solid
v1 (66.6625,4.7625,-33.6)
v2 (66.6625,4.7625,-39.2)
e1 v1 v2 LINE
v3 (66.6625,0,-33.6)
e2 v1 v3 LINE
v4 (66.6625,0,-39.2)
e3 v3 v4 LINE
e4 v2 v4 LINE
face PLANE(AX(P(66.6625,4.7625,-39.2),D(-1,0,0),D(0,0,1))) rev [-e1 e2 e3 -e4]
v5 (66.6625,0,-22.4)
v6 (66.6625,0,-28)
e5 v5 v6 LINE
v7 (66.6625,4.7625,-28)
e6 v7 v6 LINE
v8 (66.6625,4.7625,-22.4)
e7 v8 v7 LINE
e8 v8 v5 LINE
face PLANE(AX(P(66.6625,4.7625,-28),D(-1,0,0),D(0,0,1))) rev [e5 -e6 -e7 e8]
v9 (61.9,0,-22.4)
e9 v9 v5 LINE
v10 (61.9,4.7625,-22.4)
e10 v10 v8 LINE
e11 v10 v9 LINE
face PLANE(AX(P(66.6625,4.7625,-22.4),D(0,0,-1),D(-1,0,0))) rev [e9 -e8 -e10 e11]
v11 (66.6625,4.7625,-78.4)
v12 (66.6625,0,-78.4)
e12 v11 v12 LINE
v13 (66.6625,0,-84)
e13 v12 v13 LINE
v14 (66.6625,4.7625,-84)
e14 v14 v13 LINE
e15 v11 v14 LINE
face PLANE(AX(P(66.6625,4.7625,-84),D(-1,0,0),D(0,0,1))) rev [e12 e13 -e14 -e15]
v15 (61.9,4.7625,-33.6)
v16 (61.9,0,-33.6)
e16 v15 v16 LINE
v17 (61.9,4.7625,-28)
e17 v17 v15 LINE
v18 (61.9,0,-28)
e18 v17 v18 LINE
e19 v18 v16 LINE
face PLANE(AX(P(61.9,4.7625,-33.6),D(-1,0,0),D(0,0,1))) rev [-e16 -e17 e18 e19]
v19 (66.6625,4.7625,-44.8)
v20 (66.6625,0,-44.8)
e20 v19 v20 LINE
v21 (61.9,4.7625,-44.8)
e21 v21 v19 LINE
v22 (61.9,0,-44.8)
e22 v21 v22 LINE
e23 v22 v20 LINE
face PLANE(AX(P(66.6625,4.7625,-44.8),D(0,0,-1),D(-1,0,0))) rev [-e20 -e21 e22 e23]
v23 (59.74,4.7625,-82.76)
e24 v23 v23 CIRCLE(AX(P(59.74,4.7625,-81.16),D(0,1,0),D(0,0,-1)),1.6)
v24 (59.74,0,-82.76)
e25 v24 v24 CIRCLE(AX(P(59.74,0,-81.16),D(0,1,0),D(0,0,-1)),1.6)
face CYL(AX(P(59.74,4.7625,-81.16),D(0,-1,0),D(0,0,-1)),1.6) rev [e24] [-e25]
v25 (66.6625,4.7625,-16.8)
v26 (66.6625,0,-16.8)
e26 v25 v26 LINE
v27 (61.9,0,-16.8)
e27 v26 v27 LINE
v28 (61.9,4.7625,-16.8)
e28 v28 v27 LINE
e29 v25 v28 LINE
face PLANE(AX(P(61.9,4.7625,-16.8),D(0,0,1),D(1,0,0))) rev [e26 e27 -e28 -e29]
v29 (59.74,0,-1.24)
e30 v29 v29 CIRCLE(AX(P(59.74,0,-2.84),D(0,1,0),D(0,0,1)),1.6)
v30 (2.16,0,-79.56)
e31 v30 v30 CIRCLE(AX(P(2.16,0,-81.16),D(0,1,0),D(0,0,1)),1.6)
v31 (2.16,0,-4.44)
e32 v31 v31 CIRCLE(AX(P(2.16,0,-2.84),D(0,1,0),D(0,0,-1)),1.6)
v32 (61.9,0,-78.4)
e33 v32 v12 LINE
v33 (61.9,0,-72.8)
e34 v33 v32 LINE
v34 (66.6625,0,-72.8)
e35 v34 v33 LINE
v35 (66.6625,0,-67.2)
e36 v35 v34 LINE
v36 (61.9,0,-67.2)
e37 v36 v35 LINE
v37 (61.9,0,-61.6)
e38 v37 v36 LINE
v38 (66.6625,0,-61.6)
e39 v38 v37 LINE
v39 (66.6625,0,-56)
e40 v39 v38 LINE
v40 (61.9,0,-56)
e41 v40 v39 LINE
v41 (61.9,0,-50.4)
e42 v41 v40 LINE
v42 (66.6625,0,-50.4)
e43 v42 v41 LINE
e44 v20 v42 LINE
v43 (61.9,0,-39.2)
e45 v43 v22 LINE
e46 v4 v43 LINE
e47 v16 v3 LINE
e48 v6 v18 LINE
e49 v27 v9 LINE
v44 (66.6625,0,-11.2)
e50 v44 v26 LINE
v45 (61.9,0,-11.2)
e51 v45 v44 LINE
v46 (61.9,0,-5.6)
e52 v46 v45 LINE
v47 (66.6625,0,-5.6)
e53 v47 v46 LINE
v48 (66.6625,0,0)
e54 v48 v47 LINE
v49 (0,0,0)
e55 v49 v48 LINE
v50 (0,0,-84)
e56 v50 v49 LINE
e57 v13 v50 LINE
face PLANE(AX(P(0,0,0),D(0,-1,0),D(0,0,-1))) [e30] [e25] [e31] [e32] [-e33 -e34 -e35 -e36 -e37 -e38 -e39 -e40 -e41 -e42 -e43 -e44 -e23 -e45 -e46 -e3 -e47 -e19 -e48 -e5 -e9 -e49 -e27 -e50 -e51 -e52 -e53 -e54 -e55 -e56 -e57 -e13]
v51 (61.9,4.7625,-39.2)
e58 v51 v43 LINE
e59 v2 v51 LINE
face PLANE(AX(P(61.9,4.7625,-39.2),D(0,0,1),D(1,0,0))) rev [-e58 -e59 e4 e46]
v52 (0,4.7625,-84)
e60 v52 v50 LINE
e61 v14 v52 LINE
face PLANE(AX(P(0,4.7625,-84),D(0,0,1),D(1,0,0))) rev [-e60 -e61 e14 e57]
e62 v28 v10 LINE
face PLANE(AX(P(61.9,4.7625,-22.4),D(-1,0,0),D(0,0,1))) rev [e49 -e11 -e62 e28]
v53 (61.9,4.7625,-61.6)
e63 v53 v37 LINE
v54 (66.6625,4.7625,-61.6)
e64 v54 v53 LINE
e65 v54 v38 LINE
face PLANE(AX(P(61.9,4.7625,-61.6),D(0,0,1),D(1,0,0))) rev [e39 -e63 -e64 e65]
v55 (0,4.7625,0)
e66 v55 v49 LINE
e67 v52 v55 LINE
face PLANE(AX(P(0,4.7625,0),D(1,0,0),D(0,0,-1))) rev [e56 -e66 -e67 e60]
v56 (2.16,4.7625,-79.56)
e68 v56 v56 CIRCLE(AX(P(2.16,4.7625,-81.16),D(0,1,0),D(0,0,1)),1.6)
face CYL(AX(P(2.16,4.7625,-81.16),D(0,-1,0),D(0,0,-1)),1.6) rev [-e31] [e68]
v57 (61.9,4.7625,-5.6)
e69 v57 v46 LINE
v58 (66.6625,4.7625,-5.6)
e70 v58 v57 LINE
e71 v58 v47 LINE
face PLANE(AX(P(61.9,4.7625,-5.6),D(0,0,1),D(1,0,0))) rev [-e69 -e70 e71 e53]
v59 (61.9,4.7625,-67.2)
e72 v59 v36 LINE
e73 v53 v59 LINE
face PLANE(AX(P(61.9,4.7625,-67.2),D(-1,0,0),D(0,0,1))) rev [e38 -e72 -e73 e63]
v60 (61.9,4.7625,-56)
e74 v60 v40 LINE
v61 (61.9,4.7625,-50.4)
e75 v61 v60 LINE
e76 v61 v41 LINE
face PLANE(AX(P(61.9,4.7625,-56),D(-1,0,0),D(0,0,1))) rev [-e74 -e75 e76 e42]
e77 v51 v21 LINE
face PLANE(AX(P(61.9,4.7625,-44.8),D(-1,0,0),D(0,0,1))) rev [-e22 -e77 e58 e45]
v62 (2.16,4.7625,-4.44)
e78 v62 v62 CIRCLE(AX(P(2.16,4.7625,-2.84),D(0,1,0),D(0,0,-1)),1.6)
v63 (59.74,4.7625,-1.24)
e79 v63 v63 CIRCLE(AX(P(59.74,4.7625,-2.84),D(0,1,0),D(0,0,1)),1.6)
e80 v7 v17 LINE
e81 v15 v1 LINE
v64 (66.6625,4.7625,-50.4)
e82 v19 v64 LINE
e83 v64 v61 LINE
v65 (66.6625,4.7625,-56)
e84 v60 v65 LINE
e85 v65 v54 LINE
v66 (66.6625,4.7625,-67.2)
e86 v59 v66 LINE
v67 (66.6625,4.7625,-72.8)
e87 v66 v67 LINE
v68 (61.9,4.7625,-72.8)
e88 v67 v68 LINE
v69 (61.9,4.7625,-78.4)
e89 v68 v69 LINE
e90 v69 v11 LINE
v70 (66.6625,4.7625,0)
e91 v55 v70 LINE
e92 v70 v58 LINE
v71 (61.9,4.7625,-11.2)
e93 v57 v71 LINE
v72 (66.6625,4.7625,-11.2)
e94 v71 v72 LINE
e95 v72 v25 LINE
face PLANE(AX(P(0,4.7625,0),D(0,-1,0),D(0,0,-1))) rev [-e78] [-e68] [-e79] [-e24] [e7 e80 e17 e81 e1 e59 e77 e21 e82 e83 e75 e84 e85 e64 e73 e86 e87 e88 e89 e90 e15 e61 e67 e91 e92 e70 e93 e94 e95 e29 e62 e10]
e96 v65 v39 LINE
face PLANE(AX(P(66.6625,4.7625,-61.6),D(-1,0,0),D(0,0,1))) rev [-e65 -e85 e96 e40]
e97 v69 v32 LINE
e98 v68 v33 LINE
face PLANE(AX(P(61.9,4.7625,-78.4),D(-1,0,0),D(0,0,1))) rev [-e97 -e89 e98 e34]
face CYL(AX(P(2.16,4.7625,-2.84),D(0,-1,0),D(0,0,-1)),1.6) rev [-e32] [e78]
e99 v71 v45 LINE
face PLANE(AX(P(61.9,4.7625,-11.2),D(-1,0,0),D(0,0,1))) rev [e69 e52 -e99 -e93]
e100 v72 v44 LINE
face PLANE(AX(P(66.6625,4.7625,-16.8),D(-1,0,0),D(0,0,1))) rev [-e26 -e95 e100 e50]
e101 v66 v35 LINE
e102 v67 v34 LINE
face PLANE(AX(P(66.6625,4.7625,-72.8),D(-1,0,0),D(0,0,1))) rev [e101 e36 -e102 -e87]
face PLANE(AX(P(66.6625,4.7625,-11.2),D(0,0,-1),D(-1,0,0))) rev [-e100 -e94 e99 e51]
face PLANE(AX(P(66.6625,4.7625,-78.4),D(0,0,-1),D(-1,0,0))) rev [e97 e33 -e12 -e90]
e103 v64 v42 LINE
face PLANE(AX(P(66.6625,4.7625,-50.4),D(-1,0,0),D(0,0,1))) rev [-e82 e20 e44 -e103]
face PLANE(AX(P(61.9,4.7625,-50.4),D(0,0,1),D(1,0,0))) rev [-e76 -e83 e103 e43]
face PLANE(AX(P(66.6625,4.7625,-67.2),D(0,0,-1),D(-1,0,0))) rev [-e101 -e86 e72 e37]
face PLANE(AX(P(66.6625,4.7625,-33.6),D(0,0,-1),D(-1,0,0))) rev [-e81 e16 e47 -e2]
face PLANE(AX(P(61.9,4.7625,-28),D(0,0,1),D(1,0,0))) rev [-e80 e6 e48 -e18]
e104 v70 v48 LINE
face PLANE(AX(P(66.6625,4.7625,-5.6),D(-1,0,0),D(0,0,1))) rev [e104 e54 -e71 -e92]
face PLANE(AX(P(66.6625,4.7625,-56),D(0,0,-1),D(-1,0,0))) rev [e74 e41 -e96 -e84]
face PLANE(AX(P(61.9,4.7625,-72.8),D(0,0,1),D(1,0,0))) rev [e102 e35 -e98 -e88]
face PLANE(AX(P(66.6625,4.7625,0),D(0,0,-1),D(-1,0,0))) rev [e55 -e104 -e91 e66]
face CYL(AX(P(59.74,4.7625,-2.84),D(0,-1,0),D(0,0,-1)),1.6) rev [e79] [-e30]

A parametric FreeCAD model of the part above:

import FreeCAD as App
import Part
import Sketcher

V = App.Vector
Q = App.Units.Quantity

doc = App.newDocument("Part")
params = doc.addObject("Spreadsheet::Sheet", "Params")
for row, (alias, value) in enumerate([
    ("sketch1_diameter", "3.2 mm"),
    ("sketch1_height", "84 mm"),
    ("pad1_length", "4.7625 mm"),
], start=1):
    params.set(f"A{row}", alias)
    params.set(f"B{row}", "=" + value)
    params.setAlias(f"B{row}", alias)

body = doc.addObject("PartDesign::Body", "Body")

sketch1 = body.newObject("Sketcher::SketchObject", "Sketch")
sketch1.AttachmentSupport = (doc.getObject("XZ_Plane"), [""])
sketch1.MapMode = "FlatFace"
sketch1.addGeometry(Part.LineSegment(V(0, 0, 0), V(66.7, 0, 0)), False)
sketch1.addGeometry(Part.LineSegment(V(66.7, 0, 0), V(66.7, -5.6, 0)), False)
sketch1.addGeometry(Part.LineSegment(V(66.7, -5.6, 0), V(61.9, -5.6, 0)), False)
sketch1.addGeometry(Part.LineSegment(V(61.9, -5.6, 0), V(61.9, -11.2, 0)), False)
sketch1.addGeometry(Part.LineSegment(V(61.9, -11.2, 0), V(66.7, -11.2, 0)), False)
sketch1.addGeometry(Part.LineSegment(V(66.7, -11.2, 0), V(66.7, -16.8, 0)), False)
sketch1.addGeometry(Part.LineSegment(V(66.7, -16.8, 0), V(61.9, -16.8, 0)), False)
sketch1.addGeometry(Part.LineSegment(V(61.9, -16.8, 0), V(61.9, -22.4, 0)), False)
sketch1.addGeometry(Part.LineSegment(V(61.9, -22.4, 0), V(66.7, -22.4, 0)), False)
sketch1.addGeometry(Part.LineSegment(V(66.7, -22.4, 0), V(66.7, -28, 0)), False)
sketch1.addGeometry(Part.LineSegment(V(66.7, -28, 0), V(61.9, -28, 0)), False)
sketch1.addGeometry(Part.LineSegment(V(61.9, -28, 0), V(61.9, -33.6, 0)), False)
sketch1.addGeometry(Part.LineSegment(V(61.9, -33.6, 0), V(66.7, -33.6, 0)), False)
sketch1.addGeometry(Part.LineSegment(V(66.7, -33.6, 0), V(66.7, -39.2, 0)), False)
sketch1.addGeometry(Part.LineSegment(V(66.7, -39.2, 0), V(61.9, -39.2, 0)), False)
sketch1.addGeometry(Part.LineSegment(V(61.9, -39.2, 0), V(61.9, -44.8, 0)), False)
sketch1.addGeometry(Part.LineSegment(V(61.9, -44.8, 0), V(66.7, -44.8, 0)), False)
sketch1.addGeometry(Part.LineSegment(V(66.7, -44.8, 0), V(66.7, -50.4, 0)), False)
sketch1.addGeometry(Part.LineSegment(V(66.7, -50.4, 0), V(61.9, -50.4, 0)), False)
sketch1.addGeometry(Part.LineSegment(V(61.9, -50.4, 0), V(61.9, -56, 0)), False)
sketch1.addGeometry(Part.LineSegment(V(61.9, -56, 0), V(66.7, -56, 0)), False)
sketch1.addGeometry(Part.LineSegment(V(66.7, -56, 0), V(66.7, -61.6, 0)), False)
sketch1.addGeometry(Part.LineSegment(V(66.7, -61.6, 0), V(61.9, -61.6, 0)), False)
sketch1.addGeometry(Part.LineSegment(V(61.9, -61.6, 0), V(61.9, -67.2, 0)), False)
sketch1.addGeometry(Part.LineSegment(V(61.9, -67.2, 0), V(66.7, -67.2, 0)), False)
sketch1.addGeometry(Part.LineSegment(V(66.7, -67.2, 0), V(66.7, -72.8, 0)), False)
sketch1.addGeometry(Part.LineSegment(V(66.7, -72.8, 0), V(61.9, -72.8, 0)), False)
sketch1.addGeometry(Part.LineSegment(V(61.9, -72.8, 0), V(61.9, -78.4, 0)), False)
sketch1.addGeometry(Part.LineSegment(V(61.9, -78.4, 0), V(66.7, -78.4, 0)), False)
sketch1.addGeometry(Part.LineSegment(V(66.7, -78.4, 0), V(66.7, -84, 0)), False)
sketch1.addGeometry(Part.LineSegment(V(66.7, -84, 0), V(0, -84, 0)), False)
sketch1.addGeometry(Part.LineSegment(V(0, -84, 0), V(0, 0, 0)), False)
sketch1.addGeometry(Part.Circle(V(2.2, -2.8, 0), V(0, 0, 1), 1.6), False)
sketch1.addGeometry(Part.Circle(V(59.7, -2.8, 0), V(0, 0, 1), 1.6), False)
sketch1.addGeometry(Part.Circle(V(2.2, -81.2, 0), V(0, 0, 1), 1.6), False)
sketch1.addGeometry(Part.Circle(V(59.7, -81.2, 0), V(0, 0, 1), 1.6), False)
sketch1.addConstraint(Sketcher.Constraint("Coincident", 0, 2, 1, 1))
sketch1.addConstraint(Sketcher.Constraint("Coincident", 1, 2, 2, 1))
sketch1.addConstraint(Sketcher.Constraint("Coincident", 2, 2, 3, 1))
sketch1.addConstraint(Sketcher.Constraint("Coincident", 3, 2, 4, 1))
sketch1.addConstraint(Sketcher.Constraint("Coincident", 4, 2, 5, 1))
sketch1.addConstraint(Sketcher.Constraint("Coincident", 5, 2, 6, 1))
sketch1.addConstraint(Sketcher.Constraint("Coincident", 6, 2, 7, 1))
sketch1.addConstraint(Sketcher.Constraint("Coincident", 7, 2, 8, 1))
sketch1.addConstraint(Sketcher.Constraint("Coincident", 8, 2, 9, 1))
sketch1.addConstraint(Sketcher.Constraint("Coincident", 9, 2, 10, 1))
sketch1.addConstraint(Sketcher.Constraint("Coincident", 10, 2, 11, 1))
sketch1.addConstraint(Sketcher.Constraint("Coincident", 11, 2, 12, 1))
sketch1.addConstraint(Sketcher.Constraint("Coincident", 12, 2, 13, 1))
sketch1.addConstraint(Sketcher.Constraint("Coincident", 13, 2, 14, 1))
sketch1.addConstraint(Sketcher.Constraint("Coincident", 14, 2, 15, 1))
sketch1.addConstraint(Sketcher.Constraint("Coincident", 15, 2, 16, 1))
sketch1.addConstraint(Sketcher.Constraint("Coincident", 16, 2, 17, 1))
sketch1.addConstraint(Sketcher.Constraint("Coincident", 17, 2, 18, 1))
sketch1.addConstraint(Sketcher.Constraint("Coincident", 18, 2, 19, 1))
sketch1.addConstraint(Sketcher.Constraint("Coincident", 19, 2, 20, 1))
sketch1.addConstraint(Sketcher.Constraint("Coincident", 20, 2, 21, 1))
sketch1.addConstraint(Sketcher.Constraint("Coincident", 21, 2, 22, 1))
sketch1.addConstraint(Sketcher.Constraint("Coincident", 22, 2, 23, 1))
sketch1.addConstraint(Sketcher.Constraint("Coincident", 23, 2, 24, 1))
sketch1.addConstraint(Sketcher.Constraint("Coincident", 24, 2, 25, 1))
sketch1.addConstraint(Sketcher.Constraint("Coincident", 25, 2, 26, 1))
sketch1.addConstraint(Sketcher.Constraint("Coincident", 26, 2, 27, 1))
sketch1.addConstraint(Sketcher.Constraint("Coincident", 27, 2, 28, 1))
sketch1.addConstraint(Sketcher.Constraint("Coincident", 28, 2, 29, 1))
sketch1.addConstraint(Sketcher.Constraint("Coincident", 29, 2, 30, 1))
sketch1.addConstraint(Sketcher.Constraint("Coincident", 30, 2, 31, 1))
sketch1.addConstraint(Sketcher.Constraint("Coincident", 31, 2, 0, 1))
sketch1.addConstraint(Sketcher.Constraint("Horizontal", 0))
sketch1.addConstraint(Sketcher.Constraint("Vertical", 1))
sketch1.addConstraint(Sketcher.Constraint("Horizontal", 2))
sketch1.addConstraint(Sketcher.Constraint("Vertical", 3))
sketch1.addConstraint(Sketcher.Constraint("Horizontal", 4))
sketch1.addConstraint(Sketcher.Constraint("Vertical", 5))
sketch1.addConstraint(Sketcher.Constraint("Horizontal", 6))
sketch1.addConstraint(Sketcher.Constraint("Vertical", 7))
sketch1.addConstraint(Sketcher.Constraint("Horizontal", 8))
sketch1.addConstraint(Sketcher.Constraint("Vertical", 9))
sketch1.addConstraint(Sketcher.Constraint("Horizontal", 10))
sketch1.addConstraint(Sketcher.Constraint("Vertical", 11))
sketch1.addConstraint(Sketcher.Constraint("Horizontal", 12))
sketch1.addConstraint(Sketcher.Constraint("Vertical", 13))
sketch1.addConstraint(Sketcher.Constraint("Horizontal", 14))
sketch1.addConstraint(Sketcher.Constraint("Vertical", 15))
sketch1.addConstraint(Sketcher.Constraint("Horizontal", 16))
sketch1.addConstraint(Sketcher.Constraint("Vertical", 17))
sketch1.addConstraint(Sketcher.Constraint("Horizontal", 18))
sketch1.addConstraint(Sketcher.Constraint("Vertical", 19))
sketch1.addConstraint(Sketcher.Constraint("Horizontal", 20))
sketch1.addConstraint(Sketcher.Constraint("Vertical", 21))
sketch1.addConstraint(Sketcher.Constraint("Horizontal", 22))
sketch1.addConstraint(Sketcher.Constraint("Vertical", 23))
sketch1.addConstraint(Sketcher.Constraint("Horizontal", 24))
sketch1.addConstraint(Sketcher.Constraint("Vertical", 25))
sketch1.addConstraint(Sketcher.Constraint("Horizontal", 26))
sketch1.addConstraint(Sketcher.Constraint("Vertical", 27))
sketch1.addConstraint(Sketcher.Constraint("Horizontal", 28))
sketch1.addConstraint(Sketcher.Constraint("Vertical", 29))
sketch1.addConstraint(Sketcher.Constraint("Horizontal", 30))
sketch1.addConstraint(Sketcher.Constraint("Vertical", 31))
sketch1.addConstraint(Sketcher.Constraint("Coincident", 31, 2, -1, 1))
sketch1.addConstraint(Sketcher.Constraint("Equal", 32, 33))
sketch1.addConstraint(Sketcher.Constraint("Equal", 33, 34))
sketch1.addConstraint(Sketcher.Constraint("Equal", 34, 35))
sketch1.addConstraint(Sketcher.Constraint("Horizontal", 32, 3, 33, 3))
sketch1.addConstraint(Sketcher.Constraint("Horizontal", 34, 3, 35, 3))
sketch1.addConstraint(Sketcher.Constraint("Vertical", 32, 3, 34, 3))
sketch1.addConstraint(Sketcher.Constraint("Vertical", 33, 3, 35, 3))
sketch1.addConstraint(Sketcher.Constraint("Vertical", 1, 2, 4, 2))
sketch1.addConstraint(Sketcher.Constraint("Vertical", 3, 2, 6, 2))
sketch1.addConstraint(Sketcher.Constraint("Vertical", 5, 2, 8, 2))
sketch1.addConstraint(Sketcher.Constraint("Vertical", 7, 2, 10, 2))
sketch1.addConstraint(Sketcher.Constraint("Vertical", 9, 2, 12, 2))
sketch1.addConstraint(Sketcher.Constraint("Vertical", 11, 2, 14, 2))
sketch1.addConstraint(Sketcher.Constraint("Vertical", 13, 2, 16, 2))
sketch1.addConstraint(Sketcher.Constraint("Vertical", 15, 2, 18, 2))
sketch1.addConstraint(Sketcher.Constraint("Vertical", 17, 2, 20, 2))
sketch1.addConstraint(Sketcher.Constraint("Vertical", 19, 2, 22, 2))
sketch1.addConstraint(Sketcher.Constraint("Vertical", 21, 2, 24, 2))
sketch1.addConstraint(Sketcher.Constraint("Vertical", 23, 2, 26, 2))
sketch1.addConstraint(Sketcher.Constraint("Vertical", 25, 2, 28, 2))
sketch1.addConstraint(Sketcher.Constraint("Equal", 1, 3))
sketch1.addConstraint(Sketcher.Constraint("Equal", 3, 5))
sketch1.addConstraint(Sketcher.Constraint("Equal", 5, 7))
sketch1.addConstraint(Sketcher.Constraint("Equal", 7, 9))
sketch1.addConstraint(Sketcher.Constraint("Equal", 9, 11))
sketch1.addConstraint(Sketcher.Constraint("Equal", 11, 13))
sketch1.addConstraint(Sketcher.Constraint("Equal", 13, 15))
sketch1.addConstraint(Sketcher.Constraint("Equal", 15, 17))
sketch1.addConstraint(Sketcher.Constraint("Equal", 17, 19))
sketch1.addConstraint(Sketcher.Constraint("Equal", 19, 21))
sketch1.addConstraint(Sketcher.Constraint("Equal", 21, 23))
sketch1.addConstraint(Sketcher.Constraint("Equal", 23, 25))
sketch1.addConstraint(Sketcher.Constraint("Equal", 25, 27))
sketch1.addConstraint(Sketcher.Constraint("Equal", 27, 29))
sketch1.addConstraint(Sketcher.Constraint("Diameter", 32, Q("3.2 mm")))
sketch1.addConstraint(Sketcher.Constraint("DistanceY", 31, 1, 31, 2, Q("84 mm")))
sketch1.addConstraint(Sketcher.Constraint("DistanceX", -1, 1, 2, 2, Q("61.9 mm")))
sketch1.addConstraint(Sketcher.Constraint("DistanceX", -1, 1, 32, 3, Q("2.16 mm")))
sketch1.addConstraint(Sketcher.Constraint("DistanceY", 32, 3, -1, 1, Q("2.84 mm")))
sketch1.addConstraint(Sketcher.Constraint("DistanceX", -1, 1, 33, 3, Q("59.74 mm")))
sketch1.addConstraint(Sketcher.Constraint("DistanceY", 34, 3, -1, 1, Q("81.16 mm")))
sketch1.addConstraint(Sketcher.Constraint("DistanceX", 0, 1, 0, 2, Q("66.6625 mm")))
sketch1.setExpression("Constraints[99]", "Params.sketch1_diameter")
sketch1.setExpression("Constraints[100]", "Params.sketch1_height")
pad1 = body.newObject("PartDesign::Pad", "Pad")
pad1.Profile = sketch1
pad1.setExpression("Length", "Params.pad1_length")
pad1.Reversed = True

doc.recompute()
